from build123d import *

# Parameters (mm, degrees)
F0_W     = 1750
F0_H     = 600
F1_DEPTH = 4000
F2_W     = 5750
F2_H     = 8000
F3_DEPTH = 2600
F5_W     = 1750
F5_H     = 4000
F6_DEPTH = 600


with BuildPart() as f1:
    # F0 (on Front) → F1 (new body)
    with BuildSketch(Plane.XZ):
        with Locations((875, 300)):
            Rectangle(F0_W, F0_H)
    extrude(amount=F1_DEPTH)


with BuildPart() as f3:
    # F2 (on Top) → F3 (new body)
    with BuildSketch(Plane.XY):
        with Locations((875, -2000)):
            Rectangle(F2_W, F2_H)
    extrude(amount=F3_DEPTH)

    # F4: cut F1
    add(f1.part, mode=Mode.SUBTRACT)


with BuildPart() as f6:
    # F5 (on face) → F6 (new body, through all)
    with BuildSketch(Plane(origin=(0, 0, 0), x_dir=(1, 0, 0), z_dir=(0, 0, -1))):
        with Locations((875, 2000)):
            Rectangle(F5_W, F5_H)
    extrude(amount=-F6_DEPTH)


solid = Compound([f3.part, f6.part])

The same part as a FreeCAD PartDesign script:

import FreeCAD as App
import Part
import Sketcher
Q = App.Units.Quantity

doc = App.newDocument("Part")
body = doc.addObject("PartDesign::Body", "Body")

# Sketch on XZ plane
sketch1 = doc.addObject("Sketcher::SketchObject", "Sketch")
body.addObject(sketch1)
sketch1.AttachmentSupport = (doc.XZ_Plane, [""])
sketch1.MapMode = "FlatFace"
sketch1.addGeometry(Part.LineSegment(App.Vector(0, 600, 0), App.Vector(0, 0, 0)), False)
sketch1.addGeometry(Part.LineSegment(App.Vector(0, 0, 0), App.Vector(1750, 0, 0)), False)
sketch1.addGeometry(Part.LineSegment(App.Vector(1750, 0, 0), App.Vector(1750, 600, 0)), False)
sketch1.addGeometry(Part.LineSegment(App.Vector(1750, 600, 0), App.Vector(0, 600, 0)), False)
sketch1.addConstraint(Sketcher.Constraint("Coincident", 0, 2, 1, 1))
sketch1.addConstraint(Sketcher.Constraint("Coincident", 1, 2, 2, 1))
sketch1.addConstraint(Sketcher.Constraint("Coincident", 2, 2, 3, 1))
sketch1.addConstraint(Sketcher.Constraint("Coincident", 3, 2, 0, 1))
sketch1.addConstraint(Sketcher.Constraint("Vertical", 0))
sketch1.addConstraint(Sketcher.Constraint("Horizontal", 1))
sketch1.addConstraint(Sketcher.Constraint("Vertical", 2))
sketch1.addConstraint(Sketcher.Constraint("Horizontal", 3))
sketch1.addConstraint(Sketcher.Constraint("Coincident", 0, 2, -1, 1))
sketch1.addConstraint(Sketcher.Constraint("DistanceX", 1, 1, 1, 2, Q("1750 mm")))
sketch1.addConstraint(Sketcher.Constraint("DistanceY", 0, 2, 0, 1, Q("600 mm")))
pad1 = doc.addObject("PartDesign::Pad", "Pad")
body.addObject(pad1)
pad1.Profile = sketch1
pad1.Length = 4000
body2 = doc.addObject("PartDesign::Body", "Body001")

# Sketch on XY plane
sketch2 = doc.addObject("Sketcher::SketchObject", "Sketch001")
body2.addObject(sketch2)
sketch2.AttachmentSupport = (doc.getObject("XY_Plane001"), [""])
sketch2.MapMode = "FlatFace"
sketch2.addGeometry(Part.LineSegment(App.Vector(-2000, 2000, 0), App.Vector(-2000, -6000, 0)), False)
sketch2.addGeometry(Part.LineSegment(App.Vector(-2000, -6000, 0), App.Vector(3750, -6000, 0)), False)
sketch2.addGeometry(Part.LineSegment(App.Vector(3750, -6000, 0), App.Vector(3750, 2000, 0)), False)
sketch2.addGeometry(Part.LineSegment(App.Vector(3750, 2000, 0), App.Vector(-2000, 2000, 0)), False)
sketch2.addConstraint(Sketcher.Constraint("Coincident", 0, 2, 1, 1))
sketch2.addConstraint(Sketcher.Constraint("Coincident", 1, 2, 2, 1))
sketch2.addConstraint(Sketcher.Constraint("Coincident", 2, 2, 3, 1))
sketch2.addConstraint(Sketcher.Constraint("Coincident", 3, 2, 0, 1))
sketch2.addConstraint(Sketcher.Constraint("Vertical", 0))
sketch2.addConstraint(Sketcher.Constraint("Horizontal", 1))
sketch2.addConstraint(Sketcher.Constraint("Vertical", 2))
sketch2.addConstraint(Sketcher.Constraint("Horizontal", 3))
sketch2.addConstraint(Sketcher.Constraint("DistanceX", 1, 1, 1, 2, Q("5750 mm")))
sketch2.addConstraint(Sketcher.Constraint("DistanceY", 0, 2, 0, 1, Q("8000 mm")))
sketch2.addConstraint(Sketcher.Constraint("DistanceX", 0, 2, -1, 1, Q("2000 mm")))
sketch2.addConstraint(Sketcher.Constraint("DistanceY", 0, 2, -1, 1, Q("6000 mm")))
pad2 = doc.addObject("PartDesign::Pad", "Pad001")
body2.addObject(pad2)
pad2.Profile = sketch2
pad2.Length = 2600
doc.recompute()

boolean = doc.addObject("PartDesign::Boolean", "Boolean")
body2.addObject(boolean)
boolean.Type = "Cut"
boolean.addObjects([body])
body3 = doc.addObject("PartDesign::Body", "Body002")

# Sketch on XY plane
sketch3 = doc.addObject("Sketcher::SketchObject", "Sketch002")
body3.addObject(sketch3)
sketch3.AttachmentSupport = (doc.getObject("XY_Plane002"), [""])
sketch3.MapMode = "FlatFace"
sketch3.addGeometry(Part.LineSegment(App.Vector(0, -4000, 0), App.Vector(0, 0, 0)), False)
sketch3.addGeometry(Part.LineSegment(App.Vector(0, 0, 0), App.Vector(1750, 0, 0)), False)
sketch3.addGeometry(Part.LineSegment(App.Vector(1750, 0, 0), App.Vector(1750, -4000, 0)), False)
sketch3.addGeometry(Part.LineSegment(App.Vector(1750, -4000, 0), App.Vector(0, -4000, 0)), False)
sketch3.addConstraint(Sketcher.Constraint("Coincident", 0, 2, 1, 1))
sketch3.addConstraint(Sketcher.Constraint("Coincident", 1, 2, 2, 1))
sketch3.addConstraint(Sketcher.Constraint("Coincident", 2, 2, 3, 1))
sketch3.addConstraint(Sketcher.Constraint("Coincident", 3, 2, 0, 1))
sketch3.addConstraint(Sketcher.Constraint("Vertical", 0))
sketch3.addConstraint(Sketcher.Constraint("Horizontal", 1))
sketch3.addConstraint(Sketcher.Constraint("Vertical", 2))
sketch3.addConstraint(Sketcher.Constraint("Horizontal", 3))
sketch3.addConstraint(Sketcher.Constraint("Coincident", 0, 2, -1, 1))
sketch3.addConstraint(Sketcher.Constraint("DistanceX", 1, 1, 1, 2, Q("1750 mm")))
sketch3.addConstraint(Sketcher.Constraint("DistanceY", 0, 1, 0, 2, Q("4000 mm")))
pad3 = doc.addObject("PartDesign::Pad", "Pad002")
body3.addObject(pad3)
pad3.Profile = sketch3
pad3.Length = 600

doc.recompute()
